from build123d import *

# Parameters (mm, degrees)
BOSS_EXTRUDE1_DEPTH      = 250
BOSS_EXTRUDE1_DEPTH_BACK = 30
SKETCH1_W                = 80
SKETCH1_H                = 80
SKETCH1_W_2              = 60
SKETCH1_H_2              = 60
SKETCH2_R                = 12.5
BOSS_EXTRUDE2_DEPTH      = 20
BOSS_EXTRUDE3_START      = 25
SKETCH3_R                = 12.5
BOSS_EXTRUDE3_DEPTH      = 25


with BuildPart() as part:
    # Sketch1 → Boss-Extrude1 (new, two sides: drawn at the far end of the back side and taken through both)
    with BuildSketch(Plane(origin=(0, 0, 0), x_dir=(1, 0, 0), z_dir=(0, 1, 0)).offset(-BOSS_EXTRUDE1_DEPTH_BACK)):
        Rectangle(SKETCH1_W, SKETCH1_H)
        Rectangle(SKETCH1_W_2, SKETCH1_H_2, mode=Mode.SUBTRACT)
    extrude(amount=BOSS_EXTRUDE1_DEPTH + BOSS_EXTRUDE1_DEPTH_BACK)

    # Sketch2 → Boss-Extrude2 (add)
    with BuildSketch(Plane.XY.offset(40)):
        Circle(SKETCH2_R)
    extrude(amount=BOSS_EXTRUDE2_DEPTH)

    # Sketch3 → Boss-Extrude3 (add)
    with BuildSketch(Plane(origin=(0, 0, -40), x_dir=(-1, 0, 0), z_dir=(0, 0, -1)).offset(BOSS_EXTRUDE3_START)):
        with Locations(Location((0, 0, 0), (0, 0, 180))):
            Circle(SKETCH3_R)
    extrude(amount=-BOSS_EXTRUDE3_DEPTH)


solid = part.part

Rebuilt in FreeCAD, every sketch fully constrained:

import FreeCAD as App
import Part
import Sketcher
from FreeCAD import Vector

doc = App.newDocument("Part")
body = doc.addObject("PartDesign::Body", "Body")

# Sketch on XZ plane
sketch1 = doc.addObject("Sketcher::SketchObject", "Sketch")
body.addObject(sketch1)
sketch1.AttachmentSupport = (doc.XZ_Plane, [""])
sketch1.MapMode = "FlatFace"
sketch1.addGeometry([
    Part.LineSegment(Vector(-40, -40, 0), Vector(-40, 40, 0)),  # 0
    Part.LineSegment(Vector(-40, 40, 0), Vector(40, 40, 0)),  # 1
    Part.LineSegment(Vector(40, 40, 0), Vector(40, -40, 0)),  # 2
    Part.LineSegment(Vector(40, -40, 0), Vector(-40, -40, 0)),  # 3
    Part.LineSegment(Vector(30, 30, 0), Vector(-30, 30, 0)),  # 4
    Part.LineSegment(Vector(-30, 30, 0), Vector(-30, -30, 0)),  # 5
    Part.LineSegment(Vector(-30, -30, 0), Vector(30, -30, 0)),  # 6
    Part.LineSegment(Vector(30, -30, 0), Vector(30, 30, 0)),  # 7
], False)
sketch1.addConstraint([
    Sketcher.Constraint("Coincident", 0, 2, 1, 1),
    Sketcher.Constraint("Coincident", 1, 2, 2, 1),
    Sketcher.Constraint("Coincident", 2, 2, 3, 1),
    Sketcher.Constraint("Coincident", 3, 2, 0, 1),
    Sketcher.Constraint("Coincident", 4, 2, 5, 1),
    Sketcher.Constraint("Coincident", 5, 2, 6, 1),
    Sketcher.Constraint("Coincident", 6, 2, 7, 1),
    Sketcher.Constraint("Coincident", 7, 2, 4, 1),
    Sketcher.Constraint("Vertical", 0),
    Sketcher.Constraint("Horizontal", 1),
    Sketcher.Constraint("Vertical", 2),
    Sketcher.Constraint("Horizontal", 3),
    Sketcher.Constraint("Horizontal", 4),
    Sketcher.Constraint("Vertical", 5),
    Sketcher.Constraint("Horizontal", 6),
    Sketcher.Constraint("Vertical", 7),
    Sketcher.Constraint("Symmetric", 0, 2, 2, 2, -1, 1),
    Sketcher.Constraint("Symmetric", 4, 2, 6, 2, -1, 1),
    Sketcher.Constraint("Equal", 3, 0),
    Sketcher.Constraint("Equal", 6, 5),
    Sketcher.Constraint("DistanceX", 1, 1, 1, 2, 80.0),
    Sketcher.Constraint("DistanceX", 4, 2, 4, 1, 60.0),
])
pad1 = doc.addObject("PartDesign::Pad", "Pad")
body.addObject(pad1)
pad1.Profile = sketch1
pad1.Type = "TwoLengths"
pad1.Length = 250
pad1.Length2 = 30
pad1.Reversed = True

# Sketch on XY plane
sketch2 = doc.addObject("Sketcher::SketchObject", "Sketch001")
body.addObject(sketch2)
sketch2.AttachmentSupport = (doc.XY_Plane, [""])
sketch2.MapMode = "FlatFace"
sketch2.AttachmentOffset = App.Placement(Vector(0, 0, 40), App.Rotation())
sketch2.addGeometry(Part.Circle(Vector(0, 0, 0), Vector(0, 0, 1), 12), False)
sketch2.addConstraint([
    Sketcher.Constraint("Coincident", 0, 3, -1, 1),
    Sketcher.Constraint("Diameter", 0, 25.0),
])
pad2 = doc.addObject("PartDesign::Pad", "Pad001")
body.addObject(pad2)
pad2.Profile = sketch2
pad2.Length = 20

# Sketch on XY plane
sketch3 = doc.addObject("Sketcher::SketchObject", "Sketch002")
body.addObject(sketch3)
sketch3.AttachmentSupport = (doc.XY_Plane, [""])
sketch3.MapMode = "FlatFace"
sketch3.AttachmentOffset = App.Placement(Vector(0, 0, -65), App.Rotation())
sketch3.addGeometry(Part.Circle(Vector(0, 0, 0), Vector(0, 0, 1), 12), False)
sketch3.addConstraint([
    Sketcher.Constraint("Coincident", 0, 3, -1, 1),
    Sketcher.Constraint("Diameter", 0, 25.0),
])
pad3 = doc.addObject("PartDesign::Pad", "Pad002")
body.addObject(pad3)
pad3.Profile = sketch3
pad3.Length = 25

doc.recompute()
